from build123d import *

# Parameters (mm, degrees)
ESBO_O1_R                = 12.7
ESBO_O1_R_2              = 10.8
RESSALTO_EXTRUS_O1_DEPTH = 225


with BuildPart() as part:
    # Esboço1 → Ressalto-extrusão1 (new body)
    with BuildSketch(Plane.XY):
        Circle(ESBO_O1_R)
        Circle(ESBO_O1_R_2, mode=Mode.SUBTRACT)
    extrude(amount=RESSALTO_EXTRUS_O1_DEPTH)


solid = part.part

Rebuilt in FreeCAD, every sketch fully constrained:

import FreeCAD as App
import Part
import Sketcher

V = App.Vector
Q = App.Units.Quantity

doc = App.newDocument("Part")
body = doc.addObject("PartDesign::Body", "Body")

# Sketch on XY plane
sketch1 = body.newObject("Sketcher::SketchObject", "Sketch")
sketch1.AttachmentSupport = (doc.getObject("XY_Plane"), [""])
sketch1.MapMode = "FlatFace"
sketch1.addGeometry(Part.Circle(V(0, 0, 0), V(0, 0, 1), 12.7), False)
sketch1.addGeometry(Part.Circle(V(0, 0, 0), V(0, 0, 1), 10.8), False)
sketch1.addConstraint(Sketcher.Constraint("Coincident", 0, 3, -1, 1))
sketch1.addConstraint(Sketcher.Constraint("Coincident", 1, 3, -1, 1))
sketch1.addConstraint(Sketcher.Constraint("Diameter", 0, Q("25.4 mm")))
sketch1.addConstraint(Sketcher.Constraint("Diameter", 1, Q("21.6 mm")))
pad1 = body.newObject("PartDesign::Pad", "Pad")
pad1.Profile = sketch1
pad1.Length = 225

doc.recompute()
